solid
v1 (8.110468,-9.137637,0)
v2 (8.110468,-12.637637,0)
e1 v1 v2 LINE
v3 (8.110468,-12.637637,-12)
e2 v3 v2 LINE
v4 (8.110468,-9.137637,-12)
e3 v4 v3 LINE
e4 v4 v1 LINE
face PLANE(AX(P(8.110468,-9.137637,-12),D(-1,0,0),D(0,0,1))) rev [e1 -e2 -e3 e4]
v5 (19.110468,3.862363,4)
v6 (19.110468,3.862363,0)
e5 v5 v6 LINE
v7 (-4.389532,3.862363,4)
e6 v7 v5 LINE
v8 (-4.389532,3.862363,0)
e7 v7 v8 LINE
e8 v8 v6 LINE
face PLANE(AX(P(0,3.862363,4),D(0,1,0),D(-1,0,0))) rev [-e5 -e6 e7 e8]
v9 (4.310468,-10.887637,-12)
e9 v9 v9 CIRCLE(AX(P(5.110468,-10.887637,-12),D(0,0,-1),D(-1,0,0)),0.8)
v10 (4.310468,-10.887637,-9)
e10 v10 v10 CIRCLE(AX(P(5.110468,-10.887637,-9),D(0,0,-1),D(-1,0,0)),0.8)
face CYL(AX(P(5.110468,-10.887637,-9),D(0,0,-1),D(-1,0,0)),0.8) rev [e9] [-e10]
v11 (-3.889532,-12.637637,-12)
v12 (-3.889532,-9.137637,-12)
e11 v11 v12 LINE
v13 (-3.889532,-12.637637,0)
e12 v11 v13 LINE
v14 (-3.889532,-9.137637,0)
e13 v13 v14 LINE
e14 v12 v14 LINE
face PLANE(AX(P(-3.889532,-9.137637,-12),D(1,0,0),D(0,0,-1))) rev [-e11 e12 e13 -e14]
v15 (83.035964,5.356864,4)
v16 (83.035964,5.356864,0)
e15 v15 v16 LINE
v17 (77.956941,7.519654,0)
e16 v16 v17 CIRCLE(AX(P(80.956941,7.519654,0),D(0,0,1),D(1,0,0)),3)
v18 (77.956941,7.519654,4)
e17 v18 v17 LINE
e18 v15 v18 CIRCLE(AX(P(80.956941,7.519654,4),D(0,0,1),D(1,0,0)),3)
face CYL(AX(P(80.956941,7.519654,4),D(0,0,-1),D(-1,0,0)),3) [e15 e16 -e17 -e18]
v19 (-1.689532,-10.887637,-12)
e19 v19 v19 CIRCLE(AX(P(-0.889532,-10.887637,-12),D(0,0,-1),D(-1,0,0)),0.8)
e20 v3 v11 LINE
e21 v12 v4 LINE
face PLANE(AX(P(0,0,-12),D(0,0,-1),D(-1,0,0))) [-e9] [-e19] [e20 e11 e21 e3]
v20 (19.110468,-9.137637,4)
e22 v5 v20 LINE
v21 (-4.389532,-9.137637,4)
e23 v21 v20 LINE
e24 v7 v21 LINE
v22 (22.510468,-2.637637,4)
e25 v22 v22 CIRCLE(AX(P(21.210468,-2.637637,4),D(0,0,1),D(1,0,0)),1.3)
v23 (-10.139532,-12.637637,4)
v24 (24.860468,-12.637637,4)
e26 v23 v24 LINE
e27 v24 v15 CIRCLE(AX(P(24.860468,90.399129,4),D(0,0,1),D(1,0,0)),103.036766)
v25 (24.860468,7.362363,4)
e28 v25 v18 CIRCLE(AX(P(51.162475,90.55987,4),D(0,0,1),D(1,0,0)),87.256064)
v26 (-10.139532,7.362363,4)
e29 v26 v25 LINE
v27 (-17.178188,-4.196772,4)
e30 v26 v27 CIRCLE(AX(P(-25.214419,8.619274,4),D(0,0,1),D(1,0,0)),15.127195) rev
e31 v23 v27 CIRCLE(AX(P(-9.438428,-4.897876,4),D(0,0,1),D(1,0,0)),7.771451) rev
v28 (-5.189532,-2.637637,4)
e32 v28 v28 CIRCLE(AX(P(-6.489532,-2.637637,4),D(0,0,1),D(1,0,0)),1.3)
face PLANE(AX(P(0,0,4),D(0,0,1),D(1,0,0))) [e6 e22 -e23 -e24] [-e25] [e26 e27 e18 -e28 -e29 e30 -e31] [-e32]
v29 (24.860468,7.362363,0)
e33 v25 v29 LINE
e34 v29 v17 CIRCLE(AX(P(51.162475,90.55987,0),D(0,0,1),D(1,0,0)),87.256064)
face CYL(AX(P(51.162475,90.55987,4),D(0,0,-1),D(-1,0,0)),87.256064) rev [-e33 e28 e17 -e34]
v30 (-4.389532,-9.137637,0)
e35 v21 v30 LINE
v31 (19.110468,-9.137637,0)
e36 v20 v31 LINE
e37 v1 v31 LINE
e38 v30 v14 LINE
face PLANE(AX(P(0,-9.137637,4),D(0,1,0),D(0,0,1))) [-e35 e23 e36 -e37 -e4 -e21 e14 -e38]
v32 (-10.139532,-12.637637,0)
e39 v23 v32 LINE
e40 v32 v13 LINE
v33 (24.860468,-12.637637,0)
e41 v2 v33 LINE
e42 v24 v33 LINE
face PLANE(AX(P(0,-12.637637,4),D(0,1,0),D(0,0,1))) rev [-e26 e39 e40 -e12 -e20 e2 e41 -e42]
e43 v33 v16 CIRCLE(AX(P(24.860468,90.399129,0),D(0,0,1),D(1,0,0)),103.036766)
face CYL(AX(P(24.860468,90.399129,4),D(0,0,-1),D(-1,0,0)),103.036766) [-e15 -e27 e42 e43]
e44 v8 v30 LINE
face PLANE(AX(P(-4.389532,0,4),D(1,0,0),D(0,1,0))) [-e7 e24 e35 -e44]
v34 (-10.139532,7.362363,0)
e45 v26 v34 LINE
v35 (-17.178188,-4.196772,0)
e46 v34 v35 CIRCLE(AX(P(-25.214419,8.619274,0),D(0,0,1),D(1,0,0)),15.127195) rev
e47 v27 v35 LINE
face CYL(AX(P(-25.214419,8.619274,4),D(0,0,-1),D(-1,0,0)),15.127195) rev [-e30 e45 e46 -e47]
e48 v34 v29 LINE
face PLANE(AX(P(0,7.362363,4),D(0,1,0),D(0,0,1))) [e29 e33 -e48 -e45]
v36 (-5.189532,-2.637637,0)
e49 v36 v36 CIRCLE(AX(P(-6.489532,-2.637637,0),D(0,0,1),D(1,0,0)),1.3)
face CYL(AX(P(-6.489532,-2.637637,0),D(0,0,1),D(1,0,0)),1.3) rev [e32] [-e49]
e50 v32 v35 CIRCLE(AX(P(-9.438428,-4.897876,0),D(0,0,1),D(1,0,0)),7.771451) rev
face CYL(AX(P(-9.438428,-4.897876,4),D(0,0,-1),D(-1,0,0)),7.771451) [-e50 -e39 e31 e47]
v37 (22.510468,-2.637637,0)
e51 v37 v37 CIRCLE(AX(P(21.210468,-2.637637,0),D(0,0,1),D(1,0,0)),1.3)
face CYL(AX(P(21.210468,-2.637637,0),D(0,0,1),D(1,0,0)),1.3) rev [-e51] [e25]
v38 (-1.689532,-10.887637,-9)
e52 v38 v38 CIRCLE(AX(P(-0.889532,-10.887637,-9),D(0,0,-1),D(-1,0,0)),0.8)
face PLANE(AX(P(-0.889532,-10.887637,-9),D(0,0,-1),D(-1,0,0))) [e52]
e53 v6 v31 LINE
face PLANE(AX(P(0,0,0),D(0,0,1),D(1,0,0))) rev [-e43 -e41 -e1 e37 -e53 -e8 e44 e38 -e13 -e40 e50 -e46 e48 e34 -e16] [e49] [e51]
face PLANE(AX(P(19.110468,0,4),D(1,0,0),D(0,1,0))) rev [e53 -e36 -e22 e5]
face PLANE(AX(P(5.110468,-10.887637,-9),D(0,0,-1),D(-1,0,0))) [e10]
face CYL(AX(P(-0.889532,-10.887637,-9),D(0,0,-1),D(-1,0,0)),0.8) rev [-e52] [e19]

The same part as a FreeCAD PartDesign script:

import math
import FreeCAD as App
import Part
import Sketcher
from FreeCAD import Vector

doc = App.newDocument("Part")
body = doc.addObject("PartDesign::Body", "Body")

sketch1 = body.newObject("Sketcher::SketchObject", "Sketch")
sketch1.AttachmentSupport = (doc.getObject("XY_Plane"), [""])
sketch1.MapMode = "FlatFace"
sketch1.addGeometry(Part.LineSegment(Vector(24.860468, 7.362363, 0), Vector(-10.139532, 7.362363, 0)), False)
sketch1.addGeometry(Part.ArcOfCircle(Part.Circle(Vector(-25.214419, 8.619274, 0), Vector(0, 0, 1), 15.127195), math.radians(-57.910461), math.radians(-4.766174)), False)
sketch1.addGeometry(Part.ArcOfCircle(Part.Circle(Vector(-9.438428, -4.897876, 0), Vector(0, 0, 1), 7.771451), math.radians(174.824), math.radians(264.824)), False)
sketch1.addGeometry(Part.LineSegment(Vector(-10.139532, -12.637637, 0), Vector(24.860468, -12.637637, 0)), False)
sketch1.addGeometry(Part.ArcOfCircle(Part.Circle(Vector(24.860468, 90.399129, 0), Vector(0, 0, 1), 103.036766), math.radians(-90), math.radians(-56.191412)), False)
sketch1.addGeometry(Part.ArcOfCircle(Part.Circle(Vector(24.860469, 90.399127, 0), Vector(0, 0, 1), 103.036764), math.radians(-56.191412), math.radians(-55.624849)), False)
sketch1.addGeometry(Part.ArcOfCircle(Part.Circle(Vector(80.956941, 7.519654, 0), Vector(0, 0, 1), 3), math.radians(-46.13133), math.radians(180)), False)
sketch1.addGeometry(Part.ArcOfCircle(Part.Circle(Vector(51.162475, 90.55987, 0), Vector(0, 0, 1), 87.256064), math.radians(-107.543796), math.radians(-72.116742)), False)
sketch1.addGeometry(Part.LineSegment(Vector(19.110468, -9.137637, 0), Vector(-4.389532, -9.137637, 0)), False)
sketch1.addGeometry(Part.LineSegment(Vector(-4.389532, -9.137637, 0), Vector(-4.389532, 3.862363, 0)), False)
sketch1.addGeometry(Part.LineSegment(Vector(-4.389532, 3.862363, 0), Vector(19.110468, 3.862363, 0)), False)
sketch1.addGeometry(Part.LineSegment(Vector(19.110468, 3.862363, 0), Vector(19.110468, -9.137637, 0)), False)
sketch1.addConstraint(Sketcher.Constraint("Coincident", 0, 2, 1, 2))
sketch1.addConstraint(Sketcher.Constraint("Coincident", 1, 1, 2, 1))
sketch1.addConstraint(Sketcher.Constraint("Coincident", 2, 2, 3, 1))
sketch1.addConstraint(Sketcher.Constraint("Coincident", 3, 2, 4, 1))
sketch1.addConstraint(Sketcher.Constraint("Coincident", 4, 2, 5, 1))
sketch1.addConstraint(Sketcher.Constraint("Coincident", 5, 2, 6, 1))
sketch1.addConstraint(Sketcher.Constraint("Coincident", 6, 2, 7, 2))
sketch1.addConstraint(Sketcher.Constraint("Coincident", 7, 1, 0, 1))
sketch1.addConstraint(Sketcher.Constraint("Coincident", 8, 2, 9, 1))
sketch1.addConstraint(Sketcher.Constraint("Coincident", 9, 2, 10, 1))
sketch1.addConstraint(Sketcher.Constraint("Coincident", 10, 2, 11, 1))
sketch1.addConstraint(Sketcher.Constraint("Coincident", 11, 2, 8, 1))
sketch1.addConstraint(Sketcher.Constraint("Horizontal", 0))
sketch1.addConstraint(Sketcher.Constraint("Horizontal", 3))
sketch1.addConstraint(Sketcher.Constraint("Horizontal", 8))
sketch1.addConstraint(Sketcher.Constraint("Vertical", 9))
sketch1.addConstraint(Sketcher.Constraint("Horizontal", 10))
sketch1.addConstraint(Sketcher.Constraint("Vertical", 11))
sketch1.addConstraint(Sketcher.Constraint("Coincident", 5, 3, 4, 3))
sketch1.addConstraint(Sketcher.Constraint("Radius", 6, 3.0))
sketch1.addConstraint(Sketcher.Constraint("DistanceX", 0, 2, 0, 1, 35.0))
sketch1.addConstraint(Sketcher.Constraint("DistanceX", 3, 1, 3, 2, 35.0))
sketch1.addConstraint(Sketcher.Constraint("DistanceY", 9, 1, 9, 2, 13.0))
sketch1.addConstraint(Sketcher.Constraint("DistanceX", 8, 2, 8, 1, 23.5))
sketch1.addConstraint(Sketcher.Constraint("DistanceX", 0, 2, 5, 3, 35.000001))
sketch1.addConstraint(Sketcher.Constraint("DistanceY", 2, 2, 0, 2, 20.0))
sketch1.addConstraint(Sketcher.Constraint("DistanceX", 0, 2, 3, 2, 35.0))
sketch1.addConstraint(Sketcher.Constraint("DistanceY", 2, 2, 8, 2, 3.5))
sketch1.addConstraint(Sketcher.Constraint("Radius", 2, 7.771451))
sketch1.addConstraint(Sketcher.Constraint("DistanceX", 2, 2, 8, 2, 5.75))
sketch1.addConstraint(Sketcher.Constraint("Radius", 1, 15.127195))
sketch1.addConstraint(Sketcher.Constraint("Radius", 4, 103.036766))
sketch1.addConstraint(Sketcher.Constraint("Radius", 7, 87.256064))
sketch1.addConstraint(Sketcher.Constraint("DistanceY", 1, 1, 5, 3, 94.595899))
sketch1.addConstraint(Sketcher.Constraint("DistanceY", 4, 2, 7, 3, 85.774101))
sketch1.addConstraint(Sketcher.Constraint("DistanceY", 3, 2, 5, 2, 17.994501))
sketch1.addConstraint(Sketcher.Constraint("DistanceX", 1, 3, -1, 1, 25.214419))
sketch1.addConstraint(Sketcher.Constraint("DistanceY", -1, 1, 4, 3, 90.399129))
sketch1.addConstraint(Sketcher.Constraint("DistanceX", -1, 1, 5, 3, 24.860469))
sketch1.addConstraint(Sketcher.Constraint("DistanceX", -1, 1, 6, 3, 80.956941))
sketch1.addConstraint(Sketcher.Constraint("DistanceY", -1, 1, 7, 3, 90.55987))
pad1 = body.newObject("PartDesign::Pad", "Pad")
pad1.Profile = sketch1
pad1.Length = 4

sketch2 = body.newObject("Sketcher::SketchObject", "Sketch001")
sketch2.AttachmentSupport = (doc.getObject("XY_Plane"), [""])
sketch2.MapMode = "FlatFace"
sketch2.addGeometry(Part.LineSegment(Vector(8.1, -9.1, 0), Vector(8.1, -12.6, 0)), False)
sketch2.addGeometry(Part.LineSegment(Vector(8.1, -12.6, 0), Vector(-3.9, -12.6, 0)), False)
sketch2.addGeometry(Part.LineSegment(Vector(-3.9, -12.6, 0), Vector(-3.9, -9.1, 0)), False)
sketch2.addGeometry(Part.LineSegment(Vector(-3.9, -9.1, 0), Vector(8.1, -9.1, 0)), False)
sketch2.addConstraint(Sketcher.Constraint("Coincident", 0, 2, 1, 1))
sketch2.addConstraint(Sketcher.Constraint("Coincident", 1, 2, 2, 1))
sketch2.addConstraint(Sketcher.Constraint("Coincident", 2, 2, 3, 1))
sketch2.addConstraint(Sketcher.Constraint("Coincident", 3, 2, 0, 1))
sketch2.addConstraint(Sketcher.Constraint("Vertical", 0))
sketch2.addConstraint(Sketcher.Constraint("Horizontal", 1))
sketch2.addConstraint(Sketcher.Constraint("Vertical", 2))
sketch2.addConstraint(Sketcher.Constraint("Horizontal", 3))
sketch2.addConstraint(Sketcher.Constraint("DistanceX", 1, 2, 1, 1, 12.0))
sketch2.addConstraint(Sketcher.Constraint("DistanceY", 0, 2, 0, 1, 3.5))
sketch2.addConstraint(Sketcher.Constraint("DistanceX", -1, 1, 0, 2, 8.110468))
sketch2.addConstraint(Sketcher.Constraint("DistanceY", 0, 2, -1, 1, 12.637637))
pad2 = body.newObject("PartDesign::Pad", "Pad001")
pad2.Profile = sketch2
pad2.Length = 12
pad2.Reversed = True

sketch3 = body.newObject("Sketcher::SketchObject", "Sketch002")
sketch3.AttachmentSupport = (doc.getObject("XY_Plane"), [""])
sketch3.MapMode = "FlatFace"
sketch3.AttachmentOffset = App.Placement(Vector(0, 0, -12), App.Rotation())
sketch3.addGeometry(Part.Circle(Vector(-0.9, -10.9, 0), Vector(0, 0, 1), 0.8), False)
sketch3.addGeometry(Part.Circle(Vector(5.1, -10.9, 0), Vector(0, 0, 1), 0.8), False)
sketch3.addConstraint(Sketcher.Constraint("Equal", 0, 1))
sketch3.addConstraint(Sketcher.Constraint("Horizontal", 0, 3, 1, 3))
sketch3.addConstraint(Sketcher.Constraint("Diameter", 0, 1.6))
sketch3.addConstraint(Sketcher.Constraint("DistanceX", 0, 3, 1, 3, 6.0))
sketch3.addConstraint(Sketcher.Constraint("DistanceX", 0, 3, -1, 1, 0.889532))
sketch3.addConstraint(Sketcher.Constraint("DistanceY", 0, 3, -1, 1, 10.887637))
pocket1 = body.newObject("PartDesign::Pocket", "Pocket")
pocket1.Profile = sketch3
pocket1.Length = 3
pocket1.Reversed = True

sketch4 = body.newObject("Sketcher::SketchObject", "Sketch003")
sketch4.AttachmentSupport = (doc.getObject("XY_Plane"), [""])
sketch4.MapMode = "FlatFace"
sketch4.AttachmentOffset = App.Placement(Vector(0, 0, 4), App.Rotation())
sketch4.addGeometry(Part.Circle(Vector(21.2, -2.6, 0), Vector(0, 0, 1), 1.3), False)
sketch4.addGeometry(Part.Circle(Vector(-6.5, -2.6, 0), Vector(0, 0, 1), 1.3), False)
sketch4.addConstraint(Sketcher.Constraint("Equal", 0, 1))
sketch4.addConstraint(Sketcher.Constraint("Horizontal", 0, 3, 1, 3))
sketch4.addConstraint(Sketcher.Constraint("Diameter", 0, 2.6))
sketch4.addConstraint(Sketcher.Constraint("DistanceX", 1, 3, 0, 3, 27.7))
sketch4.addConstraint(Sketcher.Constraint("DistanceX", -1, 1, 0, 3, 21.210468))
sketch4.addConstraint(Sketcher.Constraint("DistanceY", 0, 3, -1, 1, 2.637637))
pocket2 = body.newObject("PartDesign::Pocket", "Pocket001")
pocket2.Profile = sketch4
pocket2.Length = 4

doc.recompute()
